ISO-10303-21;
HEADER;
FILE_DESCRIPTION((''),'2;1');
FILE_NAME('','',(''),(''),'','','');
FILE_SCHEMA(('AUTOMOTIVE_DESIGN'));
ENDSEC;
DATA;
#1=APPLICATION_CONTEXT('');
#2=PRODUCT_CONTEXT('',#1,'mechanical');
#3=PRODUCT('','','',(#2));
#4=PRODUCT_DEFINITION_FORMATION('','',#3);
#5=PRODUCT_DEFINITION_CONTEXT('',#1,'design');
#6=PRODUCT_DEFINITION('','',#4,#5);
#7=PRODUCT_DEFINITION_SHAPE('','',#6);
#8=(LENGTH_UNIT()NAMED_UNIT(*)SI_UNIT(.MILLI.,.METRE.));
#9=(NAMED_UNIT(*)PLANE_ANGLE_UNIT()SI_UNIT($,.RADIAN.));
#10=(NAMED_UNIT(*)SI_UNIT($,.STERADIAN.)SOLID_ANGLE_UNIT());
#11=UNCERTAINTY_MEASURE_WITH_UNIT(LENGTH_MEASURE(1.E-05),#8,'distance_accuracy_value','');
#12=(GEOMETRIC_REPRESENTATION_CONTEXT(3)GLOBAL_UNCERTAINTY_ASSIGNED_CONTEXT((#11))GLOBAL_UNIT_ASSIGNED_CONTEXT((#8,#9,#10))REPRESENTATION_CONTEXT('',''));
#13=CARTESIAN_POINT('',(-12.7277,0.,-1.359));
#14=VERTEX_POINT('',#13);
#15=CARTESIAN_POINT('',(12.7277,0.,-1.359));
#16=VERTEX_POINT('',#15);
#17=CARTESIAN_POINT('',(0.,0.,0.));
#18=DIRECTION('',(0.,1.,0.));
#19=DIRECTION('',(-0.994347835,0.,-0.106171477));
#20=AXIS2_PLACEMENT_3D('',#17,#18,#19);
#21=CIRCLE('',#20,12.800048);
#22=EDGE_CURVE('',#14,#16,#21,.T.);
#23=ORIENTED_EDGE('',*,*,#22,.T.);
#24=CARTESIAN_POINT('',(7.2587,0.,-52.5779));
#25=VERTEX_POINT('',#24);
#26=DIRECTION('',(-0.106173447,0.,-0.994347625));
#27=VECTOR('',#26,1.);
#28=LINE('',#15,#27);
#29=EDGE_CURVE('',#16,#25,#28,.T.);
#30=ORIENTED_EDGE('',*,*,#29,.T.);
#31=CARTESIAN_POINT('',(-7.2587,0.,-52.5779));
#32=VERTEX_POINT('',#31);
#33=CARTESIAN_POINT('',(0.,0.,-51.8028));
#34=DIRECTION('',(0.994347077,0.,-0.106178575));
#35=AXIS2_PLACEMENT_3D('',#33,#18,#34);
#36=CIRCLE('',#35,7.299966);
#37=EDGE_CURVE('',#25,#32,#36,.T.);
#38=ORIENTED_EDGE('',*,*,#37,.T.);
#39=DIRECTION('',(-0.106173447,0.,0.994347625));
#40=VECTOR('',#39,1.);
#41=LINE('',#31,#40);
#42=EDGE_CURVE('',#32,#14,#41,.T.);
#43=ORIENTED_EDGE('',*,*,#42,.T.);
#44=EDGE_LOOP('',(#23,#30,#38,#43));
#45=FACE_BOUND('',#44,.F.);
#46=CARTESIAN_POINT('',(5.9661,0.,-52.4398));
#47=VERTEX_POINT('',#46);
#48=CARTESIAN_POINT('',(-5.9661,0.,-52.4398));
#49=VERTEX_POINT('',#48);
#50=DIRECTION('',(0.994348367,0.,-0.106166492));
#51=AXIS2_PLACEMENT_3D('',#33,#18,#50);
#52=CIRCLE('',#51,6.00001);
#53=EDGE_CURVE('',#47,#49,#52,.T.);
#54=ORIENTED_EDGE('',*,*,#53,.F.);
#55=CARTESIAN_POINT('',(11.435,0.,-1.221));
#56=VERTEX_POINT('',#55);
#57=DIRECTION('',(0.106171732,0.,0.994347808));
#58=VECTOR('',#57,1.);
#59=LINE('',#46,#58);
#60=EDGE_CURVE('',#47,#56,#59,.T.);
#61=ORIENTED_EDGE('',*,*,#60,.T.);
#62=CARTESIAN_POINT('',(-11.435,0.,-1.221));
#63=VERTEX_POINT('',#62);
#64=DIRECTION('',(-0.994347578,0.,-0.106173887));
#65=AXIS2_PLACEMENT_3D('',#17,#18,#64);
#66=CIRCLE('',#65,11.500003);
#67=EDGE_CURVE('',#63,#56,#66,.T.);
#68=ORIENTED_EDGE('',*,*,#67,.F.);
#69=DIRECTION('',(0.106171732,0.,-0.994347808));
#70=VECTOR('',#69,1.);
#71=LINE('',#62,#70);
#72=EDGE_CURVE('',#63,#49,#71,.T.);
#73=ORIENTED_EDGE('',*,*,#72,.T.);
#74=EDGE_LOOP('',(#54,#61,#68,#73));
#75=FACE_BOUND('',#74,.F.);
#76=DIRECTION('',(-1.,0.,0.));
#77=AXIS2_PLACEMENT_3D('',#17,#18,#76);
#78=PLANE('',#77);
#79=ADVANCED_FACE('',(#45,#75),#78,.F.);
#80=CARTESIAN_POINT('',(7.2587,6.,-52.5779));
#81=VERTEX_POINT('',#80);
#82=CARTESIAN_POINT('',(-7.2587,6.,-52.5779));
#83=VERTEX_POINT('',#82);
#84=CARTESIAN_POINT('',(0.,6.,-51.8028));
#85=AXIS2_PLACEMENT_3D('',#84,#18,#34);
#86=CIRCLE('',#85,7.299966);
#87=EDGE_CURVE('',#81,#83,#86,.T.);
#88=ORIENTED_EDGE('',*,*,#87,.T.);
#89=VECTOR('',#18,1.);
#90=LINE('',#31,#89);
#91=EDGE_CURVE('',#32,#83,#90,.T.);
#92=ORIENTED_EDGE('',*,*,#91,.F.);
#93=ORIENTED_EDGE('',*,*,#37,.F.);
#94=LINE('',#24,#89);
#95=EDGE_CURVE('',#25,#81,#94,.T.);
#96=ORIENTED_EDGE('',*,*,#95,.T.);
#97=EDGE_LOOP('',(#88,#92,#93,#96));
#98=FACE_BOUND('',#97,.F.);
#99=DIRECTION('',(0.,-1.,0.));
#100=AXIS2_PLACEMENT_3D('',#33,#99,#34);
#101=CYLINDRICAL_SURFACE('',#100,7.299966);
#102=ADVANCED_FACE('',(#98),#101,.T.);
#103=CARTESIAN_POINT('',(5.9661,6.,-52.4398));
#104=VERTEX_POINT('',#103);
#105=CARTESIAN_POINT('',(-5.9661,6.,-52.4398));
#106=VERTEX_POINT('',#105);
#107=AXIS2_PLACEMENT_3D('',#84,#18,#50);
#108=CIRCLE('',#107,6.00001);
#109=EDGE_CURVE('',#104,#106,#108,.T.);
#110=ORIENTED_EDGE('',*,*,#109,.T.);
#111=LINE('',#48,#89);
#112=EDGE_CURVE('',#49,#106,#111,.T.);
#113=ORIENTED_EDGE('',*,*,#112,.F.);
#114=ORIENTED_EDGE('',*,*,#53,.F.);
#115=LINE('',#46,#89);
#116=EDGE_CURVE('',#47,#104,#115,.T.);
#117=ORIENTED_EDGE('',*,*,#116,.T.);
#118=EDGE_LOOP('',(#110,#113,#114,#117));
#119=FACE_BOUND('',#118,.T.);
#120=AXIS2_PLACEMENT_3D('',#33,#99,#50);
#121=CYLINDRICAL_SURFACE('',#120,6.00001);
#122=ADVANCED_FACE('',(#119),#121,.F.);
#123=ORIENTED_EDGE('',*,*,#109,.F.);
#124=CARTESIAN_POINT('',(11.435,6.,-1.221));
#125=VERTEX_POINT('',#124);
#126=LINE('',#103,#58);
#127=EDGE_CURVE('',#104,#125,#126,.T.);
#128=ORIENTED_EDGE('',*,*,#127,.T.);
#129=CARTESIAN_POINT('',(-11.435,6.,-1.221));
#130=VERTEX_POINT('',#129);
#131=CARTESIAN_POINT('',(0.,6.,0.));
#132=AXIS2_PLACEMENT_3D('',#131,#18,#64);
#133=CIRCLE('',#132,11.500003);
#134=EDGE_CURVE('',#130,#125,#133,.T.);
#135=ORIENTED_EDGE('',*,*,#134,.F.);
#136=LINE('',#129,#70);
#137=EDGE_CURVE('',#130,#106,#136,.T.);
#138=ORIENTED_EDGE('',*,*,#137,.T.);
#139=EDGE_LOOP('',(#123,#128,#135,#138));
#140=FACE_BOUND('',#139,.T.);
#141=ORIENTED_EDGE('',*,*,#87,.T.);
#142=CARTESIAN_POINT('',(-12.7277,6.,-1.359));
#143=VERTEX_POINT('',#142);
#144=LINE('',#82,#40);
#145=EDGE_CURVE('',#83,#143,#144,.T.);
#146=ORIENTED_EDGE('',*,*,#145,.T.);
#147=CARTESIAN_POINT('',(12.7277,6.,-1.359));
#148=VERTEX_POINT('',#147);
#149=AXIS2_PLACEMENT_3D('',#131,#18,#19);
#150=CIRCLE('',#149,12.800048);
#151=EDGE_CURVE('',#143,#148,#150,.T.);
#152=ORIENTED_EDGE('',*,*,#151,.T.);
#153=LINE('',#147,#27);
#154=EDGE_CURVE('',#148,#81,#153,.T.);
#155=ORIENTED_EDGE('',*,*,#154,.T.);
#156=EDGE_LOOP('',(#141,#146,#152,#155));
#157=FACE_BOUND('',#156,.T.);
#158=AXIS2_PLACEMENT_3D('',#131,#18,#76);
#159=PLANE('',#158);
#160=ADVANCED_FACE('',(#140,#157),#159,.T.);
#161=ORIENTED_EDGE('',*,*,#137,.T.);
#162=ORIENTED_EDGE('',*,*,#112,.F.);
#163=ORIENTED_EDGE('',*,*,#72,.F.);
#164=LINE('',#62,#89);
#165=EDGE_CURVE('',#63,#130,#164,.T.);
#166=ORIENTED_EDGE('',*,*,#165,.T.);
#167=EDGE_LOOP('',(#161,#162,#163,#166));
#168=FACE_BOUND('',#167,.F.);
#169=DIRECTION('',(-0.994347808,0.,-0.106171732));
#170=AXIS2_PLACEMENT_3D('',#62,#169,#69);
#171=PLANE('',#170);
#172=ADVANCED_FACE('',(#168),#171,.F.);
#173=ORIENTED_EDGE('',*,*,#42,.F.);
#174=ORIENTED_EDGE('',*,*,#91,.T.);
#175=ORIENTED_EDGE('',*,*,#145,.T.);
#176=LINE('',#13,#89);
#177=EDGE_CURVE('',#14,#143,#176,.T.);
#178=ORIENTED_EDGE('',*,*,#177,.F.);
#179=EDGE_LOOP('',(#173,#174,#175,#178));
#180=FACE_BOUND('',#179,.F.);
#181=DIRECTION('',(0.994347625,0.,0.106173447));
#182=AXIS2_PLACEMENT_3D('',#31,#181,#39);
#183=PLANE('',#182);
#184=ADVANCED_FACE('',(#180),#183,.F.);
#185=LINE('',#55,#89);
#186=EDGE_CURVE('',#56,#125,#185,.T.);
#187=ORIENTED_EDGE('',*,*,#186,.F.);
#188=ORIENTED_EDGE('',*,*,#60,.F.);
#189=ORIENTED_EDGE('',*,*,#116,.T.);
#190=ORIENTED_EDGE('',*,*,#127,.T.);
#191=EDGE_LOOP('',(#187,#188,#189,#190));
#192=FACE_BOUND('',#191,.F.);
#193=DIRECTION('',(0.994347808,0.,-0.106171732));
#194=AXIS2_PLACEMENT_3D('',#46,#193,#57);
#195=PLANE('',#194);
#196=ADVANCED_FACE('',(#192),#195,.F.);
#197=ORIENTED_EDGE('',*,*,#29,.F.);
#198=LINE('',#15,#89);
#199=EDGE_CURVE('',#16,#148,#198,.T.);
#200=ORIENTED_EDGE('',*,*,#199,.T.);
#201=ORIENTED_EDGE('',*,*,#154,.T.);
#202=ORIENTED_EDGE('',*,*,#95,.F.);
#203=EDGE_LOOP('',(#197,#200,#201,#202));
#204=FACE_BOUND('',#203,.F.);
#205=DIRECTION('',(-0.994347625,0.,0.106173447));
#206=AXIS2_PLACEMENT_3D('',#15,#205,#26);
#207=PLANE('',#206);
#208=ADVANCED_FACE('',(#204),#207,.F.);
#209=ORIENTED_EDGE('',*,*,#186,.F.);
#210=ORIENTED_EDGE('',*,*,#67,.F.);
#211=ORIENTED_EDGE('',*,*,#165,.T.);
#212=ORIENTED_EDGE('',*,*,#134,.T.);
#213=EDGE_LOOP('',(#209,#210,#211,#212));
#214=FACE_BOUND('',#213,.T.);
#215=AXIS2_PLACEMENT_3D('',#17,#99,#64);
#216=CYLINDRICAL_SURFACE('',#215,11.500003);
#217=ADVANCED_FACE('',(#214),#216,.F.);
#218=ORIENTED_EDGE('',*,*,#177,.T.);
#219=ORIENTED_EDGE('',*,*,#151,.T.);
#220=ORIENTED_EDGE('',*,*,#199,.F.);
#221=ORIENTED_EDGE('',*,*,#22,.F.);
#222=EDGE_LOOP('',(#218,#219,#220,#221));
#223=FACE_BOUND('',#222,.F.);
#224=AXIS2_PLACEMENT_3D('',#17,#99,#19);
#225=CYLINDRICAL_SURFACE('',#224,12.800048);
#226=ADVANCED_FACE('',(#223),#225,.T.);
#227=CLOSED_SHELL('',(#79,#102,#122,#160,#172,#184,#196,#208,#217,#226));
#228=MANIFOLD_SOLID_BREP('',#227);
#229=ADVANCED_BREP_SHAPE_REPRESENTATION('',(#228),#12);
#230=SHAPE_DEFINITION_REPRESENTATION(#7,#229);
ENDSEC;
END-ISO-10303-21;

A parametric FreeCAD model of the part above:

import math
import FreeCAD as App
import Part
import Sketcher
Q = App.Units.Quantity

doc = App.newDocument("Part")
body = doc.addObject("PartDesign::Body", "Body")

# Sketch on XZ plane
sketch1 = body.newObject("Sketcher::SketchObject", "Sketch")
sketch1.AttachmentSupport = (doc.getObject("XZ_Plane"), [""])
sketch1.MapMode = "FlatFace"
sketch1.addGeometry([
    Part.ArcOfCircle(Part.Circle(App.Vector(0, -52, 0), App.Vector(0, 0, 1), 7), math.radians(-174), math.radians(-6)),  # 0
    Part.LineSegment(App.Vector(-7, -53, 0), App.Vector(-13, -1, 0)),  # 1
    Part.ArcOfCircle(Part.Circle(App.Vector(0, 0, 0), App.Vector(0, 0, 1), 13), math.radians(-6), math.radians(186)),  # 2
    Part.LineSegment(App.Vector(13, -1, 0), App.Vector(7, -53, 0)),  # 3
    Part.ArcOfCircle(Part.Circle(App.Vector(0, 0, 0), App.Vector(0, 0, 1), 12), math.radians(-6), math.radians(186)),  # 4
    Part.LineSegment(App.Vector(-11, -1, 0), App.Vector(-6, -52, 0)),  # 5
    Part.ArcOfCircle(Part.Circle(App.Vector(0, -52, 0), App.Vector(0, 0, 1), 6), math.radians(-174), math.radians(-6)),  # 6
    Part.LineSegment(App.Vector(6, -52, 0), App.Vector(11, -1, 0)),  # 7
], False)
sketch1.addConstraint([
    Sketcher.Constraint("Tangent", 0, 1, 1, 1),
    Sketcher.Constraint("Tangent", 1, 2, 2, 2),
    Sketcher.Constraint("Tangent", 2, 1, 3, 1),
    Sketcher.Constraint("Tangent", 3, 2, 0, 2),
    Sketcher.Constraint("Tangent", 4, 2, 5, 1),
    Sketcher.Constraint("Tangent", 5, 2, 6, 1),
    Sketcher.Constraint("Tangent", 6, 2, 7, 1),
    Sketcher.Constraint("Tangent", 7, 2, 4, 1),
    Sketcher.Constraint("Coincident", 2, 3, -1, 1),
    Sketcher.Constraint("Coincident", 4, 3, -1, 1),
    Sketcher.Constraint("Coincident", 6, 3, 0, 3),
    Sketcher.Constraint("PointOnObject", 0, 3, -2),
    Sketcher.Constraint("Parallel", 1, 5),
    Sketcher.Constraint("Radius", 6, Q("6 mm")),
    Sketcher.Constraint("Radius", 4, Q("11.5 mm")),
    Sketcher.Constraint("Radius", 0, Q("7.3 mm")),
    Sketcher.Constraint("Distance", 1, Q("51.51 mm")),
])
pad1 = body.newObject("PartDesign::Pad", "Pad")
pad1.Profile = sketch1
pad1.Length = 6
pad1.Reversed = True

doc.recompute()
